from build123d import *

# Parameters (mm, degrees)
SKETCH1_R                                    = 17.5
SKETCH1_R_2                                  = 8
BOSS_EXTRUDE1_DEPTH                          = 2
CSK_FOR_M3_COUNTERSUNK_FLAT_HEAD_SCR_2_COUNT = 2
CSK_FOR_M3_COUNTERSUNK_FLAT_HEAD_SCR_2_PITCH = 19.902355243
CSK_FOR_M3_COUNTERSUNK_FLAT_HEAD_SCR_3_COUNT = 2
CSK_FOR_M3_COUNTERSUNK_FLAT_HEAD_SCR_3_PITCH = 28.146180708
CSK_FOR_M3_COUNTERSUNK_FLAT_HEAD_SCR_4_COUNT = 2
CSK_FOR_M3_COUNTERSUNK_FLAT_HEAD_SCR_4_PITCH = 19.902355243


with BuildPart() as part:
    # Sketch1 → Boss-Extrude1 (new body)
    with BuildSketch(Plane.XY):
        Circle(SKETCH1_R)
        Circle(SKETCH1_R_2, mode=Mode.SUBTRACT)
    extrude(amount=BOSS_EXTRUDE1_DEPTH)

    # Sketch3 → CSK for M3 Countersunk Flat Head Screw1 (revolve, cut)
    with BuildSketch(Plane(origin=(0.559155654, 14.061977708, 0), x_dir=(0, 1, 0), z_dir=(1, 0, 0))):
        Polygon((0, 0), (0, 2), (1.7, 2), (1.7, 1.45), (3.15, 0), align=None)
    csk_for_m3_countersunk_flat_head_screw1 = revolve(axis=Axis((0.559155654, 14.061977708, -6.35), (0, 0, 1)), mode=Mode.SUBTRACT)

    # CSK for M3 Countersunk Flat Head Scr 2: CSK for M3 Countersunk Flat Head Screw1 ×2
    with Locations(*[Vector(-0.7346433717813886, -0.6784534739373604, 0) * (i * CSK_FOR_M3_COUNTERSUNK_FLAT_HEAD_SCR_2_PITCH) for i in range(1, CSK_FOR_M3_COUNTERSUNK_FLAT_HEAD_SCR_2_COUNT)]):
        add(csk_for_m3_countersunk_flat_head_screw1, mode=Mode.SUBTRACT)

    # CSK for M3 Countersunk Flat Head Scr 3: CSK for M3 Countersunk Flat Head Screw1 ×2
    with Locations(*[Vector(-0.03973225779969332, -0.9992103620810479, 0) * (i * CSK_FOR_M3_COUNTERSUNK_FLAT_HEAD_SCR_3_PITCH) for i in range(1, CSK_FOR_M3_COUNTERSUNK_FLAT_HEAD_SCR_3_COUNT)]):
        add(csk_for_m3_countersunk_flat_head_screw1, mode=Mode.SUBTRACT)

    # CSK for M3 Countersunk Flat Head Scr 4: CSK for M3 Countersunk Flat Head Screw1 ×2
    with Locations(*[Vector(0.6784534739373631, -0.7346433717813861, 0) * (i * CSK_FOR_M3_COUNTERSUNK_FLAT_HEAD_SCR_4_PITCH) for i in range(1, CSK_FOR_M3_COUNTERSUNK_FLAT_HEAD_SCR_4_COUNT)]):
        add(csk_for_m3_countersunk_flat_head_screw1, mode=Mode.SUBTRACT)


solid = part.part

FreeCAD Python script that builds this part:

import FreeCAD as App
import Part
import Sketcher
Q = App.Units.Quantity


def add_polygon(sketch, points):
    """Adds a closed chain of lines whose ends are joined by coincident constraints."""
    first, n = sketch.GeometryCount, len(points)
    for a, b in zip(points, points[1:] + points[:1]):
        sketch.addGeometry(Part.LineSegment(App.Vector(*a, 0), App.Vector(*b, 0)), False)
    for i in range(n):
        sketch.addConstraint(Sketcher.Constraint("Coincident", first + i, 2, first + (i + 1) % n, 1))

doc = App.newDocument("Part")
body = doc.addObject("PartDesign::Body", "Body")

sketch1 = body.newObject("Sketcher::SketchObject", "Sketch")
sketch1.AttachmentSupport = (doc.getObject("XY_Plane"), [""])
sketch1.MapMode = "FlatFace"
sketch1.addGeometry(Part.Circle(App.Vector(0, 0, 0), App.Vector(0, 0, 1), 18), False)
sketch1.addGeometry(Part.Circle(App.Vector(0, 0, 0), App.Vector(0, 0, 1), 8), False)
sketch1.addConstraint(Sketcher.Constraint("Coincident", 0, 3, -1, 1))
sketch1.addConstraint(Sketcher.Constraint("Coincident", 1, 3, -1, 1))
sketch1.addConstraint(Sketcher.Constraint("Diameter", 0, 35.0))
sketch1.addConstraint(Sketcher.Constraint("Diameter", 1, 16.0))
pad1 = body.newObject("PartDesign::Pad", "Pad")
pad1.Profile = sketch1
pad1.Length = 2

sketch2 = body.newObject("Sketcher::SketchObject", "Sketch001")
sketch2.AttachmentSupport = (doc.getObject("YZ_Plane"), [""])
sketch2.MapMode = "FlatFace"
sketch2.AttachmentOffset = App.Placement(App.Vector(0, 0, 0.559156), App.Rotation())
add_polygon(sketch2, [(14.1, 2), (14.1, 0), (17.2, 0), (15.8, 1.4), (15.8, 2)])
sketch2.addGeometry(Part.LineSegment(App.Vector(14.1, 0, 0), App.Vector(14.1, 2, 0)), True)
sketch2.addConstraint(Sketcher.Constraint("Vertical", 0))
sketch2.addConstraint(Sketcher.Constraint("Horizontal", 1))
sketch2.addConstraint(Sketcher.Constraint("Vertical", 3))
sketch2.addConstraint(Sketcher.Constraint("Horizontal", 4))
sketch2.addConstraint(Sketcher.Constraint("Vertical", 5))
sketch2.addConstraint(Sketcher.Constraint("Coincident", 5, 1, 0, 2))
sketch2.addConstraint(Sketcher.Constraint("PointOnObject", 0, 2, -1))
sketch2.addConstraint(Sketcher.Constraint("Horizontal", 3, 2, 5, 2))
sketch2.addConstraint(Sketcher.Constraint("DistanceY", 0, 2, 0, 1, 2.0))
sketch2.addConstraint(Sketcher.Constraint("Angle", 2, Q("135 deg")))
sketch2.addConstraint(Sketcher.Constraint("DistanceX", 4, 2, 4, 1, 1.7))
sketch2.addConstraint(Sketcher.Constraint("DistanceX", 1, 1, 1, 2, 3.15))
sketch2.addConstraint(Sketcher.Constraint("DistanceX", -1, 1, 0, 2, 14.061978))
groove = body.newObject("PartDesign::Groove", "Groove")
groove.Profile = sketch2
groove.ReferenceAxis = (sketch2, ["Axis0"])
groove.Angle = 360
doc.recompute()

datumline = body.newObject("PartDesign::Line", "DatumLine")
datumline.Placement = App.Placement(App.Vector(0, 0, 0), App.Rotation(App.Vector(0, 0, 1), App.Vector(-0.734643372, -0.678453474, 0)))
linearpattern = body.newObject("PartDesign::LinearPattern", "LinearPattern")
linearpattern.Originals = [groove]
linearpattern.Direction = (datumline, [""])
linearpattern.Mode = "offset"
linearpattern.Offset = 19.902355
linearpattern.Occurrences = 2
body.Tip = linearpattern
doc.recompute()

datumline2 = body.newObject("PartDesign::Line", "DatumLine001")
datumline2.Placement = App.Placement(App.Vector(0, 0, 0), App.Rotation(App.Vector(0, 0, 1), App.Vector(-0.039732258, -0.999210362, 0)))
linearpattern2 = body.newObject("PartDesign::LinearPattern", "LinearPattern001")
linearpattern2.Originals = [groove]
linearpattern2.Direction = (datumline2, [""])
linearpattern2.Mode = "offset"
linearpattern2.Offset = 28.146181
linearpattern2.Occurrences = 2
body.Tip = linearpattern2
doc.recompute()

datumline3 = body.newObject("PartDesign::Line", "DatumLine002")
datumline3.Placement = App.Placement(App.Vector(0, 0, 0), App.Rotation(App.Vector(0, 0, 1), App.Vector(0.678453474, -0.734643372, 0)))
linearpattern3 = body.newObject("PartDesign::LinearPattern", "LinearPattern002")
linearpattern3.Originals = [groove]
linearpattern3.Direction = (datumline3, [""])
linearpattern3.Mode = "offset"
linearpattern3.Offset = 19.902355
linearpattern3.Occurrences = 2
body.Tip = linearpattern3

doc.recompute()
